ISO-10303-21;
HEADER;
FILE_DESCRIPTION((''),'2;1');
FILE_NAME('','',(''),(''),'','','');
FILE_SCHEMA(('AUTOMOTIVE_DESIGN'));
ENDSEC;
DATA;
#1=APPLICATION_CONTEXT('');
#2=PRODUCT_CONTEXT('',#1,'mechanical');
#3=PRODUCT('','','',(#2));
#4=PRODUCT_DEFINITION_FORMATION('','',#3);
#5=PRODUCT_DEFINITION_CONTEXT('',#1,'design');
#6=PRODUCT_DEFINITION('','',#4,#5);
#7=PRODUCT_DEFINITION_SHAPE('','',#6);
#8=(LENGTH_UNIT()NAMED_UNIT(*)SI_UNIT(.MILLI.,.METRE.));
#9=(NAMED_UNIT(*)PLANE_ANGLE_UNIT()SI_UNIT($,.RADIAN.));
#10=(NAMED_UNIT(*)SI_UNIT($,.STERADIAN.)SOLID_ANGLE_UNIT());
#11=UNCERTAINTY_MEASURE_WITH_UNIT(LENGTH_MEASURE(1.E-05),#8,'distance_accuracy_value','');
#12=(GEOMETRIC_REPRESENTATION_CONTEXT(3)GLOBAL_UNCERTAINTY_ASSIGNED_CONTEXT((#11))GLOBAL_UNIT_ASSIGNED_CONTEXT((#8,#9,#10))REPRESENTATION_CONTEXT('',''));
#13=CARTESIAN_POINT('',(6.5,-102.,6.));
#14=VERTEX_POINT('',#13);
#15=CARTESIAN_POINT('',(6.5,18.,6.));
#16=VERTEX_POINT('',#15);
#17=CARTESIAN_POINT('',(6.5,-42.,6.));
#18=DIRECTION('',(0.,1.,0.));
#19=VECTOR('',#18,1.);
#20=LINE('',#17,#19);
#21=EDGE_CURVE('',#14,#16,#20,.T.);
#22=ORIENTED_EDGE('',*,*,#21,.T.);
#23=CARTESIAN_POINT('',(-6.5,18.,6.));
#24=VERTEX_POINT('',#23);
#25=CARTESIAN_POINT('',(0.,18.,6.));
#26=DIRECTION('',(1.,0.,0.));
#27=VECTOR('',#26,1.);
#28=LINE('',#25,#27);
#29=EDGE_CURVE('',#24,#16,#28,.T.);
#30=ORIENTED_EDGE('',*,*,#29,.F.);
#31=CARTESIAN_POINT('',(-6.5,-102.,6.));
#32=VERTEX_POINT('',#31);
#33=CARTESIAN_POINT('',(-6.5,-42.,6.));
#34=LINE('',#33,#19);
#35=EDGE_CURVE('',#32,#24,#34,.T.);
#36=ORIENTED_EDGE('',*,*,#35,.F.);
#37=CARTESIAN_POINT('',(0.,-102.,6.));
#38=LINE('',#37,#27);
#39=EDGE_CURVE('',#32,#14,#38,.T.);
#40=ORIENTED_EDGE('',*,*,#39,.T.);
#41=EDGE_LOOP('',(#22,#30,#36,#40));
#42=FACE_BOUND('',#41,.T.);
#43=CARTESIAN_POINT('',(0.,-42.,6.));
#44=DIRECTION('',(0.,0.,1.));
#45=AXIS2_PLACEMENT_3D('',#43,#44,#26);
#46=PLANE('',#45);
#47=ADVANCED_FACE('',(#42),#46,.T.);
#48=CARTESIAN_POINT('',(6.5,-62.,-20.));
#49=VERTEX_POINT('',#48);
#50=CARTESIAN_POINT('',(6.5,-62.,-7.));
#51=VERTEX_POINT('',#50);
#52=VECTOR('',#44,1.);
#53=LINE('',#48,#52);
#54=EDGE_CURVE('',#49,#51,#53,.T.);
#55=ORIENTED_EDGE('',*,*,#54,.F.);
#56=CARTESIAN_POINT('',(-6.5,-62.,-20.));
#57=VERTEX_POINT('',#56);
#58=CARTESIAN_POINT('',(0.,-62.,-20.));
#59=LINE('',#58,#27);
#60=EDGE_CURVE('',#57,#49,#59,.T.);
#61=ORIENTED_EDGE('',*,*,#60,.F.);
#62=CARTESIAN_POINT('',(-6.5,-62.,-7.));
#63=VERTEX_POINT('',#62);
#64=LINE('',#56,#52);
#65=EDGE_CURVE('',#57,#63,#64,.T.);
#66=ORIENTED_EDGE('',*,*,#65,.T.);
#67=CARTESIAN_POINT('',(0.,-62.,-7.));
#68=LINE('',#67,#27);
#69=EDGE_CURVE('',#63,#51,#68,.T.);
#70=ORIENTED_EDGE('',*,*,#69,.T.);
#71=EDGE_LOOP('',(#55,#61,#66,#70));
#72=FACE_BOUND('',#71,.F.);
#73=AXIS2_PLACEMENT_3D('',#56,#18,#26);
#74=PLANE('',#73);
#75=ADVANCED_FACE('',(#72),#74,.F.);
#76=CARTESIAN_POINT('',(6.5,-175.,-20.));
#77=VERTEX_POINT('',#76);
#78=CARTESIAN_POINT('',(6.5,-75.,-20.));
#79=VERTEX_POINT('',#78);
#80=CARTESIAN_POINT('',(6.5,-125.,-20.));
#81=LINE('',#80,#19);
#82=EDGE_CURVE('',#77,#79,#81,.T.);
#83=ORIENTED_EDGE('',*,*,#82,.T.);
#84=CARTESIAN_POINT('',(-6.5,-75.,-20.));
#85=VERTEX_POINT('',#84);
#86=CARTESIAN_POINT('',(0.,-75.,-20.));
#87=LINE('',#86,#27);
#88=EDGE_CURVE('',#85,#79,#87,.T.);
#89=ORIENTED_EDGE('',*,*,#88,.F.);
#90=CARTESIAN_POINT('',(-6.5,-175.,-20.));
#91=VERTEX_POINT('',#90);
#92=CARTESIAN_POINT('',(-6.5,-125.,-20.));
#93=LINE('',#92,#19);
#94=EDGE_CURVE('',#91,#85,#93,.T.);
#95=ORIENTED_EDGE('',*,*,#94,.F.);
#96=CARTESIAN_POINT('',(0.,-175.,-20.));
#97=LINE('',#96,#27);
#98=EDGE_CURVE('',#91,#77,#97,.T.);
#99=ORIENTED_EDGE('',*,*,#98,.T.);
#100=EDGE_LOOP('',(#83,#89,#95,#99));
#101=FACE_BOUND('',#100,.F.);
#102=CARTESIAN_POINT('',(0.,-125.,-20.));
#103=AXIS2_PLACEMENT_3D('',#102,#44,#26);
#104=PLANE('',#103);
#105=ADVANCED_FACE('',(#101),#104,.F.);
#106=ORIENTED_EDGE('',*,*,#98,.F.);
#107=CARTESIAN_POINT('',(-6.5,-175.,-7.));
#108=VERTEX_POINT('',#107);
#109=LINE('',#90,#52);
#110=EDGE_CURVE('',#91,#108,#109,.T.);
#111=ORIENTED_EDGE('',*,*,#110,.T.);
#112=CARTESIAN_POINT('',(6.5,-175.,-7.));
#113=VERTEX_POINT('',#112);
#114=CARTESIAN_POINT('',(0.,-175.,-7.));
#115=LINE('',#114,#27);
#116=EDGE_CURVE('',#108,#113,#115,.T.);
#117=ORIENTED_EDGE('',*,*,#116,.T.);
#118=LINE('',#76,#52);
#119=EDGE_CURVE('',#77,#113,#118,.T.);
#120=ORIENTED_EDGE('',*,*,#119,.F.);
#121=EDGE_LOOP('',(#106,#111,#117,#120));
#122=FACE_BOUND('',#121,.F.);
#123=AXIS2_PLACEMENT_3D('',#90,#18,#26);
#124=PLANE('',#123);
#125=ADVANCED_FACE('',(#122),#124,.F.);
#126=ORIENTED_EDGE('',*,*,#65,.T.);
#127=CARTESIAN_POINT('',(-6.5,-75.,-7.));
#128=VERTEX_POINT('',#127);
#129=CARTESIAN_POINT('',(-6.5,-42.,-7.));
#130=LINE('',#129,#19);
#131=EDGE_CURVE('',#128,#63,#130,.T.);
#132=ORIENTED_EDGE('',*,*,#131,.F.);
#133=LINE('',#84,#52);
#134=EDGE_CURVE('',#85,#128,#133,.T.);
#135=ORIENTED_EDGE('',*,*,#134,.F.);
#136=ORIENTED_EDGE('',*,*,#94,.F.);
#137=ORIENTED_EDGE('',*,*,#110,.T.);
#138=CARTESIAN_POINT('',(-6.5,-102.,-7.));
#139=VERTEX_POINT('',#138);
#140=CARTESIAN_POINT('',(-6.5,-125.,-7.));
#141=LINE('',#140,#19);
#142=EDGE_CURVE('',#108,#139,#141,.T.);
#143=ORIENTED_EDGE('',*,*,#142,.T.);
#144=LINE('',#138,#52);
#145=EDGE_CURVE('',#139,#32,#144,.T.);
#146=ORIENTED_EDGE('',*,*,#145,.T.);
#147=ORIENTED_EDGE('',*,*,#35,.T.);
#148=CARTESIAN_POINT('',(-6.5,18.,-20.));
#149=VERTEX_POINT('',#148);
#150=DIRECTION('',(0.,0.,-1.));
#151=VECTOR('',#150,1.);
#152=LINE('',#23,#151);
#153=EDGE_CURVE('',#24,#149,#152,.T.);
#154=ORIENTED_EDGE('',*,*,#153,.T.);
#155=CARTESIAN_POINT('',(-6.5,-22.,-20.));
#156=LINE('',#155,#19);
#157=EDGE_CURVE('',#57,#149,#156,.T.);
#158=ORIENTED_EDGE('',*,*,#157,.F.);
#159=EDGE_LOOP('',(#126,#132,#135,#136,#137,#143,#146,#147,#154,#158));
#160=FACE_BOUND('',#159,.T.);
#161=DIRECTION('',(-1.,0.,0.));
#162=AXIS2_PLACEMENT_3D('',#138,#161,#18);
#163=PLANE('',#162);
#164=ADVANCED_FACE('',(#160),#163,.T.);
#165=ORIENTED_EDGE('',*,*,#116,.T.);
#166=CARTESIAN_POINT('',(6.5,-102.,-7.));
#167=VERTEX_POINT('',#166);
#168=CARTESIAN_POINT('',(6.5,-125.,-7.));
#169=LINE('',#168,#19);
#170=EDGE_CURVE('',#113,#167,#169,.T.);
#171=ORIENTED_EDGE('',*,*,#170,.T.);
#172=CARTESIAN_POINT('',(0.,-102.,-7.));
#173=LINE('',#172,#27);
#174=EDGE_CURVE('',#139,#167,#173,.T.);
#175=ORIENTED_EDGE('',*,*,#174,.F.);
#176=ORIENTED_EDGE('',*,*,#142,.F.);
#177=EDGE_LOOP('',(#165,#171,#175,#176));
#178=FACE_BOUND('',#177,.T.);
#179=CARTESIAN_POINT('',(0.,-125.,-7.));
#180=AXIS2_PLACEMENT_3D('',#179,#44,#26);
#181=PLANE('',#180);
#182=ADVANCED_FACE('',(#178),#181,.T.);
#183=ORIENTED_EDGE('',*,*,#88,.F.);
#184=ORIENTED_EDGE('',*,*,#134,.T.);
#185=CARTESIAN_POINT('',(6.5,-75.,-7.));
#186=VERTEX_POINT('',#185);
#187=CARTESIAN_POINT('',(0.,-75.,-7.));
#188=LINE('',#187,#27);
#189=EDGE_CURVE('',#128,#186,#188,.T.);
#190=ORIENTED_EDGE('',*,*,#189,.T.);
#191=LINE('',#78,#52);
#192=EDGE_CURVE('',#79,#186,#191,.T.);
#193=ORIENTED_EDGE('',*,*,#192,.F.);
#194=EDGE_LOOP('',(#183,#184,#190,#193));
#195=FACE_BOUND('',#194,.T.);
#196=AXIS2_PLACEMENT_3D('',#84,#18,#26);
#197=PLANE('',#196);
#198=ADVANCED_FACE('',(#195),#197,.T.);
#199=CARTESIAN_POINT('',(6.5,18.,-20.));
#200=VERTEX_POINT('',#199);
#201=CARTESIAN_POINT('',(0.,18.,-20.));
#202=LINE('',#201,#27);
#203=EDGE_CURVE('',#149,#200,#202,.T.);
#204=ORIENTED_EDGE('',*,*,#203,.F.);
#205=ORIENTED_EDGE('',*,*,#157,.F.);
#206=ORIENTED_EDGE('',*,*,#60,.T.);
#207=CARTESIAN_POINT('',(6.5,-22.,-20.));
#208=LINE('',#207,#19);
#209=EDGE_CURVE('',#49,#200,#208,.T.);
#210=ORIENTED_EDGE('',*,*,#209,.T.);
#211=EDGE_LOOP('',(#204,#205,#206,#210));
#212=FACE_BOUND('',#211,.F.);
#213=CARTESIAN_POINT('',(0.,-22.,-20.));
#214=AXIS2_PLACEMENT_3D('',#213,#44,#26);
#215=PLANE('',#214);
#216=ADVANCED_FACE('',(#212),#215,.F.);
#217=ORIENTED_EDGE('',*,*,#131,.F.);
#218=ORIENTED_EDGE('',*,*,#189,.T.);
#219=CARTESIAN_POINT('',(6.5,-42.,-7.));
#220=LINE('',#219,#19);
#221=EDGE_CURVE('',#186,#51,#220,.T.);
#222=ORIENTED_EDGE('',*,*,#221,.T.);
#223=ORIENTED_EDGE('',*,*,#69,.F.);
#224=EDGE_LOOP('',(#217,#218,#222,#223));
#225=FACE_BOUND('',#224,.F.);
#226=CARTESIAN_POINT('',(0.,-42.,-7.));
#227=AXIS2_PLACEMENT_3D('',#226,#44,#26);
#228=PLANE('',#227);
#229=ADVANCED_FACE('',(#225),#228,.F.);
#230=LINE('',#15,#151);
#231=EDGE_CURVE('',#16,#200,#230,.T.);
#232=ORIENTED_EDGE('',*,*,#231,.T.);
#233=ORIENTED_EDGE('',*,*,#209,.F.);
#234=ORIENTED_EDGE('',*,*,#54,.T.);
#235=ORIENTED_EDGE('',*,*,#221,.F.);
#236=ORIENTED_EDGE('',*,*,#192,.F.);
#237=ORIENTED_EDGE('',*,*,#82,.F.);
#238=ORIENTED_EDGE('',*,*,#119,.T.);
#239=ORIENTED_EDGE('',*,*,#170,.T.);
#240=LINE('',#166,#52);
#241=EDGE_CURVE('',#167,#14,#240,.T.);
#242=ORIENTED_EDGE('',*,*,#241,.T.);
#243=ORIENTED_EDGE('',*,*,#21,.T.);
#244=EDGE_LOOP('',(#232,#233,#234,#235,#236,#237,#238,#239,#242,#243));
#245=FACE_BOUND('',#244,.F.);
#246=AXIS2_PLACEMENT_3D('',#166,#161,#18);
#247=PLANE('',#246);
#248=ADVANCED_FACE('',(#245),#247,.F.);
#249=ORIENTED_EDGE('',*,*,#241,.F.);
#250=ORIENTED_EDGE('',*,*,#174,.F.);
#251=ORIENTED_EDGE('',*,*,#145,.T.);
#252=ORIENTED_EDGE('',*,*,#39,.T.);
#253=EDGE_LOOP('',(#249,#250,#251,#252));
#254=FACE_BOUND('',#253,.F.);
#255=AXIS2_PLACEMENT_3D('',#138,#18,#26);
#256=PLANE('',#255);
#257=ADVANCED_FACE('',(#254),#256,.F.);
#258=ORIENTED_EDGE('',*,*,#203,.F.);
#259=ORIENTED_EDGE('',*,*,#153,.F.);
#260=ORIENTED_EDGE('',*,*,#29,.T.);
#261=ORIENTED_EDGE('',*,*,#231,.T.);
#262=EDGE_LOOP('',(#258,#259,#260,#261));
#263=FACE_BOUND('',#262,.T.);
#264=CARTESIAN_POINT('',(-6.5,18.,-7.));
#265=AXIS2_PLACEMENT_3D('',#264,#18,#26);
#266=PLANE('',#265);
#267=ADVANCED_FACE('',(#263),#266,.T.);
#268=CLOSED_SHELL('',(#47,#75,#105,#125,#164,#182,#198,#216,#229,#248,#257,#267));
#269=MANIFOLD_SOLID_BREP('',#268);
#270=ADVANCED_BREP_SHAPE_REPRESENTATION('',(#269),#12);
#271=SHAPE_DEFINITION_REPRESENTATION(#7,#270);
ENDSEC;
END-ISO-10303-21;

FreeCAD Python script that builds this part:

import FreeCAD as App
import Part
import Sketcher
from FreeCAD import Vector


def add_polygon(sketch, points):
    """Adds a closed chain of lines whose ends are joined by coincident constraints."""
    first, n = sketch.GeometryCount, len(points)
    for a, b in zip(points, points[1:] + points[:1]):
        sketch.addGeometry(Part.LineSegment(App.Vector(*a, 0), App.Vector(*b, 0)), False)
    for i in range(n):
        sketch.addConstraint(Sketcher.Constraint("Coincident", first + i, 2, first + (i + 1) % n, 1))

doc = App.newDocument("Part")
params = doc.addObject("Spreadsheet::Sheet", "Params")
for row, (alias, value) in enumerate([
    ("sketch1_width", "13 mm"),
    ("sketch1_height", "120 mm"),
    ("pad1_length", "13 mm"),
    ("sketch2_width", "13 mm"),
    ("sketch2_height", "80 mm"),
    ("pad2_length", "13 mm"),
    ("sketch3_width", "13 mm"),
    ("sketch3_height", "100 mm"),
    ("pad3_length", "13 mm"),
], start=1):
    params.set(f"A{row}", alias)
    params.set(f"B{row}", "=" + value)
    params.setAlias(f"B{row}", alias)

body = doc.addObject("PartDesign::Body", "Body")

# Sketch on XY plane
sketch1 = body.newObject("Sketcher::SketchObject", "Sketch")
sketch1.AttachmentSupport = (doc.getObject("XY_Plane"), [""])
sketch1.MapMode = "FlatFace"
sketch1.AttachmentOffset = App.Placement(Vector(0, 0, -7), App.Rotation())
add_polygon(sketch1, [(-6, 18), (-6, -102), (6, -102), (6, 18)])  # lines 0-3
sketch1.addConstraint(Sketcher.Constraint("Vertical", 0))
sketch1.addConstraint(Sketcher.Constraint("Horizontal", 1))
sketch1.addConstraint(Sketcher.Constraint("Vertical", 2))
sketch1.addConstraint(Sketcher.Constraint("Horizontal", 3))
sketch1.addConstraint(Sketcher.Constraint("DistanceX", 1, 1, 1, 2, 13.0))
sketch1.addConstraint(Sketcher.Constraint("DistanceY", 0, 2, 0, 1, 120.0))
sketch1.addConstraint(Sketcher.Constraint("DistanceY", 0, 2, -1, 1, 102.0))
sketch1.addConstraint(Sketcher.Constraint("DistanceX", 0, 2, -1, 1, 6.5))
sketch1.setExpression("Constraints[8]", "Params.sketch1_width")
sketch1.setExpression("Constraints[9]", "Params.sketch1_height")
pad1 = body.newObject("PartDesign::Pad", "Pad")
pad1.Profile = sketch1
pad1.setExpression("Length", "Params.pad1_length")
body2 = doc.addObject("PartDesign::Body", "Body001")

# Sketch on XY plane
sketch2 = body2.newObject("Sketcher::SketchObject", "Sketch001")
sketch2.AttachmentSupport = (doc.getObject("XY_Plane001"), [""])
sketch2.MapMode = "FlatFace"
sketch2.AttachmentOffset = App.Placement(Vector(0, 0, -20), App.Rotation())
add_polygon(sketch2, [(-6, 18), (-6, -62), (6, -62), (6, 18)])  # lines 0-3
sketch2.addConstraint(Sketcher.Constraint("Vertical", 0))
sketch2.addConstraint(Sketcher.Constraint("Horizontal", 1))
sketch2.addConstraint(Sketcher.Constraint("Vertical", 2))
sketch2.addConstraint(Sketcher.Constraint("Horizontal", 3))
sketch2.addConstraint(Sketcher.Constraint("DistanceX", 1, 1, 1, 2, 13.0))
sketch2.addConstraint(Sketcher.Constraint("DistanceY", 0, 2, 0, 1, 80.0))
sketch2.addConstraint(Sketcher.Constraint("DistanceY", 0, 2, -1, 1, 62.0))
sketch2.addConstraint(Sketcher.Constraint("DistanceX", 0, 2, -1, 1, 6.5))
sketch2.setExpression("Constraints[8]", "Params.sketch2_width")
sketch2.setExpression("Constraints[9]", "Params.sketch2_height")
pad2 = body2.newObject("PartDesign::Pad", "Pad001")
pad2.Profile = sketch2
pad2.setExpression("Length", "Params.pad2_length")
doc.recompute()

boolean = body2.newObject("PartDesign::Boolean", "Boolean")
boolean.Type = "Fuse"
boolean.addObjects([body])
body3 = doc.addObject("PartDesign::Body", "Body002")

# Sketch on XY plane
sketch3 = body3.newObject("Sketcher::SketchObject", "Sketch002")
sketch3.AttachmentSupport = (doc.getObject("XY_Plane002"), [""])
sketch3.MapMode = "FlatFace"
sketch3.AttachmentOffset = App.Placement(Vector(0, 0, -20), App.Rotation())
add_polygon(sketch3, [(-6, -75), (-6, -175), (6, -175), (6, -75)])  # lines 0-3
sketch3.addConstraint(Sketcher.Constraint("Vertical", 0))
sketch3.addConstraint(Sketcher.Constraint("Horizontal", 1))
sketch3.addConstraint(Sketcher.Constraint("Vertical", 2))
sketch3.addConstraint(Sketcher.Constraint("Horizontal", 3))
sketch3.addConstraint(Sketcher.Constraint("DistanceX", 1, 1, 1, 2, 13.0))
sketch3.addConstraint(Sketcher.Constraint("DistanceY", 0, 2, 0, 1, 100.0))
sketch3.addConstraint(Sketcher.Constraint("DistanceY", 0, 2, -1, 1, 175.0))
sketch3.addConstraint(Sketcher.Constraint("DistanceX", 0, 2, -1, 1, 6.5))
sketch3.setExpression("Constraints[8]", "Params.sketch3_width")
sketch3.setExpression("Constraints[9]", "Params.sketch3_height")
pad3 = body3.newObject("PartDesign::Pad", "Pad002")
pad3.Profile = sketch3
pad3.setExpression("Length", "Params.pad3_length")
doc.recompute()

boolean2 = body3.newObject("PartDesign::Boolean", "Boolean001")
boolean2.Type = "Fuse"
boolean2.addObjects([body2])

doc.recompute()
